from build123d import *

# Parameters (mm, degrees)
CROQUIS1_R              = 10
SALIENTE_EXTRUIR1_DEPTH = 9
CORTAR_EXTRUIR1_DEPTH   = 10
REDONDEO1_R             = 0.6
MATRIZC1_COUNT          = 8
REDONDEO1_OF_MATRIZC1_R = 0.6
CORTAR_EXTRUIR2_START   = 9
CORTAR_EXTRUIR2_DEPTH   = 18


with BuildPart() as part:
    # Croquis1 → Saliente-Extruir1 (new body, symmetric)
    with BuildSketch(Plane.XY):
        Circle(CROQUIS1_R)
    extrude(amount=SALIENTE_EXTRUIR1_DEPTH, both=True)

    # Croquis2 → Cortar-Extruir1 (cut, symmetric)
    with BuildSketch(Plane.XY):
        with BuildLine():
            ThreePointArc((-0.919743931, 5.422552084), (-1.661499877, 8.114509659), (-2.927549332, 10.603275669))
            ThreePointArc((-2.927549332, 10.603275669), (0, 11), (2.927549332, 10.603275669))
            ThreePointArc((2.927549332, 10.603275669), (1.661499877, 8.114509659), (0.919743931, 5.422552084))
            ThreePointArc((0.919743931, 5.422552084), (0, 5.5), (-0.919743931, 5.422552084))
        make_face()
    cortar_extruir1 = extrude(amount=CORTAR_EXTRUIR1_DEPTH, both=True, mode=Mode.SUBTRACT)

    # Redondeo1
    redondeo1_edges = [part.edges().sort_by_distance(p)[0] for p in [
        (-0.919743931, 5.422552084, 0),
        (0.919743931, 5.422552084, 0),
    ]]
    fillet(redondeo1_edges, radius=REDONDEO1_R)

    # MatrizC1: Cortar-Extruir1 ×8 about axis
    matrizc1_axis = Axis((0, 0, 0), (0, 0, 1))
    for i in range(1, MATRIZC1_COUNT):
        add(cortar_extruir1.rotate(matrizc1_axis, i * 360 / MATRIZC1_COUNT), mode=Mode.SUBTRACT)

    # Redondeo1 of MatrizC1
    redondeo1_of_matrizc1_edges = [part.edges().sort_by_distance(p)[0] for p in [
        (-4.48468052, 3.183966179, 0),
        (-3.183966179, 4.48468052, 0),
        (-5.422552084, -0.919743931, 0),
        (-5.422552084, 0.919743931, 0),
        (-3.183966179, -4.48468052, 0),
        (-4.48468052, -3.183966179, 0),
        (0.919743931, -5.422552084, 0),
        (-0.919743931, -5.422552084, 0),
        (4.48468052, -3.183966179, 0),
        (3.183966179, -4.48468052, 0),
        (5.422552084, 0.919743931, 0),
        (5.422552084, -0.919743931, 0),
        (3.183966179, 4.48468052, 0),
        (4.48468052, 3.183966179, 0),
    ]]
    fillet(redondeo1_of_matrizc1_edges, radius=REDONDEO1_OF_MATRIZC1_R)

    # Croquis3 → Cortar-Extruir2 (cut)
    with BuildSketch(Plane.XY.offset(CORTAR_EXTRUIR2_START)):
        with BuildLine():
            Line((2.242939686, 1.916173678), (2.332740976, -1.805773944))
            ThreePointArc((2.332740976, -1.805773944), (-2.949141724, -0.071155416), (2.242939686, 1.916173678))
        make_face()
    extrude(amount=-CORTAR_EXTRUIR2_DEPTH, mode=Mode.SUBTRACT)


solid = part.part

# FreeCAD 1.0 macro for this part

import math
import FreeCAD as App
import Part
import Sketcher
from FreeCAD import Vector


def edges_at(feature, points):
    """Names of the edges that pass closest to the given points."""
    edges = feature.Shape.Edges
    near = lambda p: min(range(len(edges)), key=lambda i: edges[i].distToShape(Part.Vertex(*p))[0])
    return sorted({f"Edge{near(p) + 1}" for p in points})

doc = App.newDocument("Part")
body = doc.addObject("PartDesign::Body", "Body")

# Sketch on XY plane
sketch1 = body.newObject("Sketcher::SketchObject", "Sketch")
sketch1.AttachmentSupport = (doc.getObject("XY_Plane"), [""])
sketch1.MapMode = "FlatFace"
sketch1.addGeometry(Part.Circle(Vector(0, 0, 0), Vector(0, 0, 1), 10), False)
sketch1.addConstraint([
    Sketcher.Constraint("Coincident", 0, 3, -1, 1),
    Sketcher.Constraint("Diameter", 0, 20.0),
])
pad1 = body.newObject("PartDesign::Pad", "Pad")
pad1.Profile = sketch1
pad1.Length = 18
pad1.Midplane = True

# Sketch on XY plane
sketch2 = body.newObject("Sketcher::SketchObject", "Sketch001")
sketch2.AttachmentSupport = (doc.getObject("XY_Plane"), [""])
sketch2.MapMode = "FlatFace"
sketch2.addGeometry([
    Part.ArcOfCircle(Part.Circle(Vector(-14.6, 3.1, 0), Vector(0, 0, 1), 13.9), math.radians(10), math.radians(33)),
    Part.ArcOfCircle(Part.Circle(Vector(0, 0, 0), Vector(0, 0, 1), 5.5), math.radians(80.37), math.radians(99.63)),
    Part.ArcOfCircle(Part.Circle(Vector(14.6, 3.1, 0), Vector(0, 0, 1), 13.9), math.radians(147), math.radians(170)),
    Part.ArcOfCircle(Part.Circle(Vector(0, 0, 0), Vector(0, 0, 1), 11), math.radians(75), math.radians(105)),
], False)
sketch2.addConstraint([
    Sketcher.Constraint("Coincident", 0, 1, 1, 2),
    Sketcher.Constraint("Coincident", 1, 1, 2, 2),
    Sketcher.Constraint("Coincident", 2, 1, 3, 1),
    Sketcher.Constraint("Coincident", 3, 2, 0, 2),
    Sketcher.Constraint("Coincident", 1, 3, -1, 1),
    Sketcher.Constraint("Coincident", 3, 3, -1, 1),
    Sketcher.Constraint("Equal", 0, 2),
    Sketcher.Constraint("Symmetric", 0, 3, 2, 3, -2),
    Sketcher.Constraint("Radius", 3, 11.0),
    Sketcher.Constraint("Radius", 1, 5.5),
    Sketcher.Constraint("Radius", 0, 13.866211),
    Sketcher.Constraint("DistanceX", 0, 3, -1, 1, 14.590699),
    Sketcher.Constraint("DistanceX", 3, 2, 2, 1, 5.855099),
])
pocket1 = body.newObject("PartDesign::Pocket", "Pocket")
pocket1.Profile = sketch2
pocket1.Length = 20
pocket1.Midplane = True
doc.recompute()

fillet = body.newObject("PartDesign::Fillet", "Fillet")
fillet.Base = (pocket1, edges_at(pocket1, [(-0.92, 5.423, 0), (0.92, 5.423, 0)]))
fillet.Radius = 0.6
doc.recompute()

polarpattern = body.newObject("PartDesign::PolarPattern", "PolarPattern")
polarpattern.Originals = [pocket1]
polarpattern.Axis = (doc.getObject("Z_Axis"), [""])
polarpattern.Angle = 360
polarpattern.Occurrences = 8
body.Tip = polarpattern
doc.recompute()

fillet2 = body.newObject("PartDesign::Fillet", "Fillet001")
fillet2.Base = (polarpattern, edges_at(polarpattern, [
    (-4.485, 3.184, 0),
    (-3.184, 4.485, 0),
    (-5.423, -0.92, 0),
    (-5.423, 0.92, 0),
    (-3.184, -4.485, 0),
    (-4.485, -3.184, 0),
    (0.92, -5.423, 0),
    (-0.92, -5.423, 0),
    (4.485, -3.184, 0),
    (3.184, -4.485, 0),
    (5.423, 0.92, 0),
    (5.423, -0.92, 0),
    (3.184, 4.485, 0),
    (4.485, 3.184, 0),
]))
fillet2.Radius = 0.6

# Sketch on XY plane
sketch3 = body.newObject("Sketcher::SketchObject", "Sketch002")
sketch3.AttachmentSupport = (doc.getObject("XY_Plane"), [""])
sketch3.MapMode = "FlatFace"
sketch3.AttachmentOffset = App.Placement(Vector(0, 0, 9), App.Rotation())
sketch3.addGeometry([
    Part.LineSegment(Vector(2.3, -1.8, 0), Vector(2.2, 1.9, 0)),
    Part.ArcOfCircle(Part.Circle(Vector(0, 0, 0), Vector(0, 0, 1), 3), math.radians(41), math.radians(322)),
], False)
sketch3.addConstraint([
    Sketcher.Constraint("Coincident", 0, 1, 1, 2),
    Sketcher.Constraint("Coincident", 1, 1, 0, 2),
    Sketcher.Constraint("Coincident", 1, 3, -1, 1),
    Sketcher.Constraint("Radius", 1, 2.95),
    Sketcher.Constraint("DistanceX", 1, 1, 0, 1, 0.089801),
    Sketcher.Constraint("Distance", 0, 3.723031),
])
pocket2 = body.newObject("PartDesign::Pocket", "Pocket001")
pocket2.Profile = sketch3
pocket2.Length = 18

doc.recompute()
